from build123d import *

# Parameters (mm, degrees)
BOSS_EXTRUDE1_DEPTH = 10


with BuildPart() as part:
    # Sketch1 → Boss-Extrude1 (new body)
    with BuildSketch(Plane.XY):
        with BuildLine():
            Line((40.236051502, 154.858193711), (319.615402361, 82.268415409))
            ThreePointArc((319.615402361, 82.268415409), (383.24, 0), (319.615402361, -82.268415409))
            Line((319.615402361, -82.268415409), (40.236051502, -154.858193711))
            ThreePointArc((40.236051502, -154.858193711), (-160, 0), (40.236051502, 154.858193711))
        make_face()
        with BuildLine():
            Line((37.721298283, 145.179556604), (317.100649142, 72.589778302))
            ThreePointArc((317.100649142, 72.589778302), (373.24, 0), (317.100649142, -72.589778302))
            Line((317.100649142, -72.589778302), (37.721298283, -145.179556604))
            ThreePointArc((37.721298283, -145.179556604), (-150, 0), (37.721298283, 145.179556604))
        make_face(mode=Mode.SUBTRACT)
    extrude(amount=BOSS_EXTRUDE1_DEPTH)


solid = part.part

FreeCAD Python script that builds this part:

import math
import FreeCAD as App
import Part
import Sketcher
from FreeCAD import Vector
Q = App.Units.Quantity

doc = App.newDocument("Part")
params = doc.addObject("Spreadsheet::Sheet", "Params")
for row, (alias, value) in enumerate([
    ("sketch1_radius", "160 mm"),
    ("sketch1_radius2", "85 mm"),
    ("sketch1_radius3", "75 mm"),
    ("pad1_length", "10 mm"),
], start=1):
    params.set(f"A{row}", alias)
    params.set(f"B{row}", "=" + value)
    params.setAlias(f"B{row}", alias)

body = doc.addObject("PartDesign::Body", "Body")

sketch1 = body.newObject("Sketcher::SketchObject", "Sketch")
sketch1.AttachmentSupport = (doc.getObject("XY_Plane"), [""])
sketch1.MapMode = "FlatFace"
sketch1.addGeometry([
    Part.LineSegment(Vector(320, 82, 0), Vector(40, 155, 0)),
    Part.ArcOfCircle(Part.Circle(Vector(0, 0, 0), Vector(0, 0, 1), 160), math.radians(75), math.radians(285)),
    Part.LineSegment(Vector(40, -155, 0), Vector(320, -82, 0)),
    Part.ArcOfCircle(Part.Circle(Vector(298, 0, 0), Vector(0, 0, 1), 85), math.radians(-75), math.radians(75)),
    Part.LineSegment(Vector(38, 145, 0), Vector(317, 73, 0)),
    Part.ArcOfCircle(Part.Circle(Vector(298, 0, 0), Vector(0, 0, 1), 75), math.radians(-75), math.radians(75)),
    Part.LineSegment(Vector(317, -73, 0), Vector(38, -145, 0)),
    Part.ArcOfCircle(Part.Circle(Vector(0, 0, 0), Vector(0, 0, 1), 150), math.radians(75), math.radians(285)),
], False)
sketch1.addConstraint([
    Sketcher.Constraint("Tangent", 0, 2, 1, 1),
    Sketcher.Constraint("Tangent", 1, 2, 2, 1),
    Sketcher.Constraint("Tangent", 2, 2, 3, 1),
    Sketcher.Constraint("Tangent", 3, 2, 0, 1),
    Sketcher.Constraint("Tangent", 4, 2, 5, 2),
    Sketcher.Constraint("Tangent", 5, 1, 6, 1),
    Sketcher.Constraint("Tangent", 6, 2, 7, 2),
    Sketcher.Constraint("Tangent", 7, 1, 4, 1),
    Sketcher.Constraint("Coincident", 1, 3, -1, 1),
    Sketcher.Constraint("Coincident", 7, 3, -1, 1),
    Sketcher.Constraint("Coincident", 5, 3, 3, 3),
    Sketcher.Constraint("PointOnObject", 3, 3, -1),
    Sketcher.Constraint("Parallel", 0, 4),
    Sketcher.Constraint("Radius", 1, Q("160 mm")),
    Sketcher.Constraint("Radius", 3, Q("85 mm")),
    Sketcher.Constraint("Radius", 5, Q("75 mm")),
    Sketcher.Constraint("DistanceX", -1, 1, 3, 3, Q("298.24 mm")),
])
sketch1.setExpression("Constraints[13]", "Params.sketch1_radius")
sketch1.setExpression("Constraints[14]", "Params.sketch1_radius2")
sketch1.setExpression("Constraints[15]", "Params.sketch1_radius3")
pad1 = body.newObject("PartDesign::Pad", "Pad")
pad1.Profile = sketch1
pad1.setExpression("Length", "Params.pad1_length")

doc.recompute()
